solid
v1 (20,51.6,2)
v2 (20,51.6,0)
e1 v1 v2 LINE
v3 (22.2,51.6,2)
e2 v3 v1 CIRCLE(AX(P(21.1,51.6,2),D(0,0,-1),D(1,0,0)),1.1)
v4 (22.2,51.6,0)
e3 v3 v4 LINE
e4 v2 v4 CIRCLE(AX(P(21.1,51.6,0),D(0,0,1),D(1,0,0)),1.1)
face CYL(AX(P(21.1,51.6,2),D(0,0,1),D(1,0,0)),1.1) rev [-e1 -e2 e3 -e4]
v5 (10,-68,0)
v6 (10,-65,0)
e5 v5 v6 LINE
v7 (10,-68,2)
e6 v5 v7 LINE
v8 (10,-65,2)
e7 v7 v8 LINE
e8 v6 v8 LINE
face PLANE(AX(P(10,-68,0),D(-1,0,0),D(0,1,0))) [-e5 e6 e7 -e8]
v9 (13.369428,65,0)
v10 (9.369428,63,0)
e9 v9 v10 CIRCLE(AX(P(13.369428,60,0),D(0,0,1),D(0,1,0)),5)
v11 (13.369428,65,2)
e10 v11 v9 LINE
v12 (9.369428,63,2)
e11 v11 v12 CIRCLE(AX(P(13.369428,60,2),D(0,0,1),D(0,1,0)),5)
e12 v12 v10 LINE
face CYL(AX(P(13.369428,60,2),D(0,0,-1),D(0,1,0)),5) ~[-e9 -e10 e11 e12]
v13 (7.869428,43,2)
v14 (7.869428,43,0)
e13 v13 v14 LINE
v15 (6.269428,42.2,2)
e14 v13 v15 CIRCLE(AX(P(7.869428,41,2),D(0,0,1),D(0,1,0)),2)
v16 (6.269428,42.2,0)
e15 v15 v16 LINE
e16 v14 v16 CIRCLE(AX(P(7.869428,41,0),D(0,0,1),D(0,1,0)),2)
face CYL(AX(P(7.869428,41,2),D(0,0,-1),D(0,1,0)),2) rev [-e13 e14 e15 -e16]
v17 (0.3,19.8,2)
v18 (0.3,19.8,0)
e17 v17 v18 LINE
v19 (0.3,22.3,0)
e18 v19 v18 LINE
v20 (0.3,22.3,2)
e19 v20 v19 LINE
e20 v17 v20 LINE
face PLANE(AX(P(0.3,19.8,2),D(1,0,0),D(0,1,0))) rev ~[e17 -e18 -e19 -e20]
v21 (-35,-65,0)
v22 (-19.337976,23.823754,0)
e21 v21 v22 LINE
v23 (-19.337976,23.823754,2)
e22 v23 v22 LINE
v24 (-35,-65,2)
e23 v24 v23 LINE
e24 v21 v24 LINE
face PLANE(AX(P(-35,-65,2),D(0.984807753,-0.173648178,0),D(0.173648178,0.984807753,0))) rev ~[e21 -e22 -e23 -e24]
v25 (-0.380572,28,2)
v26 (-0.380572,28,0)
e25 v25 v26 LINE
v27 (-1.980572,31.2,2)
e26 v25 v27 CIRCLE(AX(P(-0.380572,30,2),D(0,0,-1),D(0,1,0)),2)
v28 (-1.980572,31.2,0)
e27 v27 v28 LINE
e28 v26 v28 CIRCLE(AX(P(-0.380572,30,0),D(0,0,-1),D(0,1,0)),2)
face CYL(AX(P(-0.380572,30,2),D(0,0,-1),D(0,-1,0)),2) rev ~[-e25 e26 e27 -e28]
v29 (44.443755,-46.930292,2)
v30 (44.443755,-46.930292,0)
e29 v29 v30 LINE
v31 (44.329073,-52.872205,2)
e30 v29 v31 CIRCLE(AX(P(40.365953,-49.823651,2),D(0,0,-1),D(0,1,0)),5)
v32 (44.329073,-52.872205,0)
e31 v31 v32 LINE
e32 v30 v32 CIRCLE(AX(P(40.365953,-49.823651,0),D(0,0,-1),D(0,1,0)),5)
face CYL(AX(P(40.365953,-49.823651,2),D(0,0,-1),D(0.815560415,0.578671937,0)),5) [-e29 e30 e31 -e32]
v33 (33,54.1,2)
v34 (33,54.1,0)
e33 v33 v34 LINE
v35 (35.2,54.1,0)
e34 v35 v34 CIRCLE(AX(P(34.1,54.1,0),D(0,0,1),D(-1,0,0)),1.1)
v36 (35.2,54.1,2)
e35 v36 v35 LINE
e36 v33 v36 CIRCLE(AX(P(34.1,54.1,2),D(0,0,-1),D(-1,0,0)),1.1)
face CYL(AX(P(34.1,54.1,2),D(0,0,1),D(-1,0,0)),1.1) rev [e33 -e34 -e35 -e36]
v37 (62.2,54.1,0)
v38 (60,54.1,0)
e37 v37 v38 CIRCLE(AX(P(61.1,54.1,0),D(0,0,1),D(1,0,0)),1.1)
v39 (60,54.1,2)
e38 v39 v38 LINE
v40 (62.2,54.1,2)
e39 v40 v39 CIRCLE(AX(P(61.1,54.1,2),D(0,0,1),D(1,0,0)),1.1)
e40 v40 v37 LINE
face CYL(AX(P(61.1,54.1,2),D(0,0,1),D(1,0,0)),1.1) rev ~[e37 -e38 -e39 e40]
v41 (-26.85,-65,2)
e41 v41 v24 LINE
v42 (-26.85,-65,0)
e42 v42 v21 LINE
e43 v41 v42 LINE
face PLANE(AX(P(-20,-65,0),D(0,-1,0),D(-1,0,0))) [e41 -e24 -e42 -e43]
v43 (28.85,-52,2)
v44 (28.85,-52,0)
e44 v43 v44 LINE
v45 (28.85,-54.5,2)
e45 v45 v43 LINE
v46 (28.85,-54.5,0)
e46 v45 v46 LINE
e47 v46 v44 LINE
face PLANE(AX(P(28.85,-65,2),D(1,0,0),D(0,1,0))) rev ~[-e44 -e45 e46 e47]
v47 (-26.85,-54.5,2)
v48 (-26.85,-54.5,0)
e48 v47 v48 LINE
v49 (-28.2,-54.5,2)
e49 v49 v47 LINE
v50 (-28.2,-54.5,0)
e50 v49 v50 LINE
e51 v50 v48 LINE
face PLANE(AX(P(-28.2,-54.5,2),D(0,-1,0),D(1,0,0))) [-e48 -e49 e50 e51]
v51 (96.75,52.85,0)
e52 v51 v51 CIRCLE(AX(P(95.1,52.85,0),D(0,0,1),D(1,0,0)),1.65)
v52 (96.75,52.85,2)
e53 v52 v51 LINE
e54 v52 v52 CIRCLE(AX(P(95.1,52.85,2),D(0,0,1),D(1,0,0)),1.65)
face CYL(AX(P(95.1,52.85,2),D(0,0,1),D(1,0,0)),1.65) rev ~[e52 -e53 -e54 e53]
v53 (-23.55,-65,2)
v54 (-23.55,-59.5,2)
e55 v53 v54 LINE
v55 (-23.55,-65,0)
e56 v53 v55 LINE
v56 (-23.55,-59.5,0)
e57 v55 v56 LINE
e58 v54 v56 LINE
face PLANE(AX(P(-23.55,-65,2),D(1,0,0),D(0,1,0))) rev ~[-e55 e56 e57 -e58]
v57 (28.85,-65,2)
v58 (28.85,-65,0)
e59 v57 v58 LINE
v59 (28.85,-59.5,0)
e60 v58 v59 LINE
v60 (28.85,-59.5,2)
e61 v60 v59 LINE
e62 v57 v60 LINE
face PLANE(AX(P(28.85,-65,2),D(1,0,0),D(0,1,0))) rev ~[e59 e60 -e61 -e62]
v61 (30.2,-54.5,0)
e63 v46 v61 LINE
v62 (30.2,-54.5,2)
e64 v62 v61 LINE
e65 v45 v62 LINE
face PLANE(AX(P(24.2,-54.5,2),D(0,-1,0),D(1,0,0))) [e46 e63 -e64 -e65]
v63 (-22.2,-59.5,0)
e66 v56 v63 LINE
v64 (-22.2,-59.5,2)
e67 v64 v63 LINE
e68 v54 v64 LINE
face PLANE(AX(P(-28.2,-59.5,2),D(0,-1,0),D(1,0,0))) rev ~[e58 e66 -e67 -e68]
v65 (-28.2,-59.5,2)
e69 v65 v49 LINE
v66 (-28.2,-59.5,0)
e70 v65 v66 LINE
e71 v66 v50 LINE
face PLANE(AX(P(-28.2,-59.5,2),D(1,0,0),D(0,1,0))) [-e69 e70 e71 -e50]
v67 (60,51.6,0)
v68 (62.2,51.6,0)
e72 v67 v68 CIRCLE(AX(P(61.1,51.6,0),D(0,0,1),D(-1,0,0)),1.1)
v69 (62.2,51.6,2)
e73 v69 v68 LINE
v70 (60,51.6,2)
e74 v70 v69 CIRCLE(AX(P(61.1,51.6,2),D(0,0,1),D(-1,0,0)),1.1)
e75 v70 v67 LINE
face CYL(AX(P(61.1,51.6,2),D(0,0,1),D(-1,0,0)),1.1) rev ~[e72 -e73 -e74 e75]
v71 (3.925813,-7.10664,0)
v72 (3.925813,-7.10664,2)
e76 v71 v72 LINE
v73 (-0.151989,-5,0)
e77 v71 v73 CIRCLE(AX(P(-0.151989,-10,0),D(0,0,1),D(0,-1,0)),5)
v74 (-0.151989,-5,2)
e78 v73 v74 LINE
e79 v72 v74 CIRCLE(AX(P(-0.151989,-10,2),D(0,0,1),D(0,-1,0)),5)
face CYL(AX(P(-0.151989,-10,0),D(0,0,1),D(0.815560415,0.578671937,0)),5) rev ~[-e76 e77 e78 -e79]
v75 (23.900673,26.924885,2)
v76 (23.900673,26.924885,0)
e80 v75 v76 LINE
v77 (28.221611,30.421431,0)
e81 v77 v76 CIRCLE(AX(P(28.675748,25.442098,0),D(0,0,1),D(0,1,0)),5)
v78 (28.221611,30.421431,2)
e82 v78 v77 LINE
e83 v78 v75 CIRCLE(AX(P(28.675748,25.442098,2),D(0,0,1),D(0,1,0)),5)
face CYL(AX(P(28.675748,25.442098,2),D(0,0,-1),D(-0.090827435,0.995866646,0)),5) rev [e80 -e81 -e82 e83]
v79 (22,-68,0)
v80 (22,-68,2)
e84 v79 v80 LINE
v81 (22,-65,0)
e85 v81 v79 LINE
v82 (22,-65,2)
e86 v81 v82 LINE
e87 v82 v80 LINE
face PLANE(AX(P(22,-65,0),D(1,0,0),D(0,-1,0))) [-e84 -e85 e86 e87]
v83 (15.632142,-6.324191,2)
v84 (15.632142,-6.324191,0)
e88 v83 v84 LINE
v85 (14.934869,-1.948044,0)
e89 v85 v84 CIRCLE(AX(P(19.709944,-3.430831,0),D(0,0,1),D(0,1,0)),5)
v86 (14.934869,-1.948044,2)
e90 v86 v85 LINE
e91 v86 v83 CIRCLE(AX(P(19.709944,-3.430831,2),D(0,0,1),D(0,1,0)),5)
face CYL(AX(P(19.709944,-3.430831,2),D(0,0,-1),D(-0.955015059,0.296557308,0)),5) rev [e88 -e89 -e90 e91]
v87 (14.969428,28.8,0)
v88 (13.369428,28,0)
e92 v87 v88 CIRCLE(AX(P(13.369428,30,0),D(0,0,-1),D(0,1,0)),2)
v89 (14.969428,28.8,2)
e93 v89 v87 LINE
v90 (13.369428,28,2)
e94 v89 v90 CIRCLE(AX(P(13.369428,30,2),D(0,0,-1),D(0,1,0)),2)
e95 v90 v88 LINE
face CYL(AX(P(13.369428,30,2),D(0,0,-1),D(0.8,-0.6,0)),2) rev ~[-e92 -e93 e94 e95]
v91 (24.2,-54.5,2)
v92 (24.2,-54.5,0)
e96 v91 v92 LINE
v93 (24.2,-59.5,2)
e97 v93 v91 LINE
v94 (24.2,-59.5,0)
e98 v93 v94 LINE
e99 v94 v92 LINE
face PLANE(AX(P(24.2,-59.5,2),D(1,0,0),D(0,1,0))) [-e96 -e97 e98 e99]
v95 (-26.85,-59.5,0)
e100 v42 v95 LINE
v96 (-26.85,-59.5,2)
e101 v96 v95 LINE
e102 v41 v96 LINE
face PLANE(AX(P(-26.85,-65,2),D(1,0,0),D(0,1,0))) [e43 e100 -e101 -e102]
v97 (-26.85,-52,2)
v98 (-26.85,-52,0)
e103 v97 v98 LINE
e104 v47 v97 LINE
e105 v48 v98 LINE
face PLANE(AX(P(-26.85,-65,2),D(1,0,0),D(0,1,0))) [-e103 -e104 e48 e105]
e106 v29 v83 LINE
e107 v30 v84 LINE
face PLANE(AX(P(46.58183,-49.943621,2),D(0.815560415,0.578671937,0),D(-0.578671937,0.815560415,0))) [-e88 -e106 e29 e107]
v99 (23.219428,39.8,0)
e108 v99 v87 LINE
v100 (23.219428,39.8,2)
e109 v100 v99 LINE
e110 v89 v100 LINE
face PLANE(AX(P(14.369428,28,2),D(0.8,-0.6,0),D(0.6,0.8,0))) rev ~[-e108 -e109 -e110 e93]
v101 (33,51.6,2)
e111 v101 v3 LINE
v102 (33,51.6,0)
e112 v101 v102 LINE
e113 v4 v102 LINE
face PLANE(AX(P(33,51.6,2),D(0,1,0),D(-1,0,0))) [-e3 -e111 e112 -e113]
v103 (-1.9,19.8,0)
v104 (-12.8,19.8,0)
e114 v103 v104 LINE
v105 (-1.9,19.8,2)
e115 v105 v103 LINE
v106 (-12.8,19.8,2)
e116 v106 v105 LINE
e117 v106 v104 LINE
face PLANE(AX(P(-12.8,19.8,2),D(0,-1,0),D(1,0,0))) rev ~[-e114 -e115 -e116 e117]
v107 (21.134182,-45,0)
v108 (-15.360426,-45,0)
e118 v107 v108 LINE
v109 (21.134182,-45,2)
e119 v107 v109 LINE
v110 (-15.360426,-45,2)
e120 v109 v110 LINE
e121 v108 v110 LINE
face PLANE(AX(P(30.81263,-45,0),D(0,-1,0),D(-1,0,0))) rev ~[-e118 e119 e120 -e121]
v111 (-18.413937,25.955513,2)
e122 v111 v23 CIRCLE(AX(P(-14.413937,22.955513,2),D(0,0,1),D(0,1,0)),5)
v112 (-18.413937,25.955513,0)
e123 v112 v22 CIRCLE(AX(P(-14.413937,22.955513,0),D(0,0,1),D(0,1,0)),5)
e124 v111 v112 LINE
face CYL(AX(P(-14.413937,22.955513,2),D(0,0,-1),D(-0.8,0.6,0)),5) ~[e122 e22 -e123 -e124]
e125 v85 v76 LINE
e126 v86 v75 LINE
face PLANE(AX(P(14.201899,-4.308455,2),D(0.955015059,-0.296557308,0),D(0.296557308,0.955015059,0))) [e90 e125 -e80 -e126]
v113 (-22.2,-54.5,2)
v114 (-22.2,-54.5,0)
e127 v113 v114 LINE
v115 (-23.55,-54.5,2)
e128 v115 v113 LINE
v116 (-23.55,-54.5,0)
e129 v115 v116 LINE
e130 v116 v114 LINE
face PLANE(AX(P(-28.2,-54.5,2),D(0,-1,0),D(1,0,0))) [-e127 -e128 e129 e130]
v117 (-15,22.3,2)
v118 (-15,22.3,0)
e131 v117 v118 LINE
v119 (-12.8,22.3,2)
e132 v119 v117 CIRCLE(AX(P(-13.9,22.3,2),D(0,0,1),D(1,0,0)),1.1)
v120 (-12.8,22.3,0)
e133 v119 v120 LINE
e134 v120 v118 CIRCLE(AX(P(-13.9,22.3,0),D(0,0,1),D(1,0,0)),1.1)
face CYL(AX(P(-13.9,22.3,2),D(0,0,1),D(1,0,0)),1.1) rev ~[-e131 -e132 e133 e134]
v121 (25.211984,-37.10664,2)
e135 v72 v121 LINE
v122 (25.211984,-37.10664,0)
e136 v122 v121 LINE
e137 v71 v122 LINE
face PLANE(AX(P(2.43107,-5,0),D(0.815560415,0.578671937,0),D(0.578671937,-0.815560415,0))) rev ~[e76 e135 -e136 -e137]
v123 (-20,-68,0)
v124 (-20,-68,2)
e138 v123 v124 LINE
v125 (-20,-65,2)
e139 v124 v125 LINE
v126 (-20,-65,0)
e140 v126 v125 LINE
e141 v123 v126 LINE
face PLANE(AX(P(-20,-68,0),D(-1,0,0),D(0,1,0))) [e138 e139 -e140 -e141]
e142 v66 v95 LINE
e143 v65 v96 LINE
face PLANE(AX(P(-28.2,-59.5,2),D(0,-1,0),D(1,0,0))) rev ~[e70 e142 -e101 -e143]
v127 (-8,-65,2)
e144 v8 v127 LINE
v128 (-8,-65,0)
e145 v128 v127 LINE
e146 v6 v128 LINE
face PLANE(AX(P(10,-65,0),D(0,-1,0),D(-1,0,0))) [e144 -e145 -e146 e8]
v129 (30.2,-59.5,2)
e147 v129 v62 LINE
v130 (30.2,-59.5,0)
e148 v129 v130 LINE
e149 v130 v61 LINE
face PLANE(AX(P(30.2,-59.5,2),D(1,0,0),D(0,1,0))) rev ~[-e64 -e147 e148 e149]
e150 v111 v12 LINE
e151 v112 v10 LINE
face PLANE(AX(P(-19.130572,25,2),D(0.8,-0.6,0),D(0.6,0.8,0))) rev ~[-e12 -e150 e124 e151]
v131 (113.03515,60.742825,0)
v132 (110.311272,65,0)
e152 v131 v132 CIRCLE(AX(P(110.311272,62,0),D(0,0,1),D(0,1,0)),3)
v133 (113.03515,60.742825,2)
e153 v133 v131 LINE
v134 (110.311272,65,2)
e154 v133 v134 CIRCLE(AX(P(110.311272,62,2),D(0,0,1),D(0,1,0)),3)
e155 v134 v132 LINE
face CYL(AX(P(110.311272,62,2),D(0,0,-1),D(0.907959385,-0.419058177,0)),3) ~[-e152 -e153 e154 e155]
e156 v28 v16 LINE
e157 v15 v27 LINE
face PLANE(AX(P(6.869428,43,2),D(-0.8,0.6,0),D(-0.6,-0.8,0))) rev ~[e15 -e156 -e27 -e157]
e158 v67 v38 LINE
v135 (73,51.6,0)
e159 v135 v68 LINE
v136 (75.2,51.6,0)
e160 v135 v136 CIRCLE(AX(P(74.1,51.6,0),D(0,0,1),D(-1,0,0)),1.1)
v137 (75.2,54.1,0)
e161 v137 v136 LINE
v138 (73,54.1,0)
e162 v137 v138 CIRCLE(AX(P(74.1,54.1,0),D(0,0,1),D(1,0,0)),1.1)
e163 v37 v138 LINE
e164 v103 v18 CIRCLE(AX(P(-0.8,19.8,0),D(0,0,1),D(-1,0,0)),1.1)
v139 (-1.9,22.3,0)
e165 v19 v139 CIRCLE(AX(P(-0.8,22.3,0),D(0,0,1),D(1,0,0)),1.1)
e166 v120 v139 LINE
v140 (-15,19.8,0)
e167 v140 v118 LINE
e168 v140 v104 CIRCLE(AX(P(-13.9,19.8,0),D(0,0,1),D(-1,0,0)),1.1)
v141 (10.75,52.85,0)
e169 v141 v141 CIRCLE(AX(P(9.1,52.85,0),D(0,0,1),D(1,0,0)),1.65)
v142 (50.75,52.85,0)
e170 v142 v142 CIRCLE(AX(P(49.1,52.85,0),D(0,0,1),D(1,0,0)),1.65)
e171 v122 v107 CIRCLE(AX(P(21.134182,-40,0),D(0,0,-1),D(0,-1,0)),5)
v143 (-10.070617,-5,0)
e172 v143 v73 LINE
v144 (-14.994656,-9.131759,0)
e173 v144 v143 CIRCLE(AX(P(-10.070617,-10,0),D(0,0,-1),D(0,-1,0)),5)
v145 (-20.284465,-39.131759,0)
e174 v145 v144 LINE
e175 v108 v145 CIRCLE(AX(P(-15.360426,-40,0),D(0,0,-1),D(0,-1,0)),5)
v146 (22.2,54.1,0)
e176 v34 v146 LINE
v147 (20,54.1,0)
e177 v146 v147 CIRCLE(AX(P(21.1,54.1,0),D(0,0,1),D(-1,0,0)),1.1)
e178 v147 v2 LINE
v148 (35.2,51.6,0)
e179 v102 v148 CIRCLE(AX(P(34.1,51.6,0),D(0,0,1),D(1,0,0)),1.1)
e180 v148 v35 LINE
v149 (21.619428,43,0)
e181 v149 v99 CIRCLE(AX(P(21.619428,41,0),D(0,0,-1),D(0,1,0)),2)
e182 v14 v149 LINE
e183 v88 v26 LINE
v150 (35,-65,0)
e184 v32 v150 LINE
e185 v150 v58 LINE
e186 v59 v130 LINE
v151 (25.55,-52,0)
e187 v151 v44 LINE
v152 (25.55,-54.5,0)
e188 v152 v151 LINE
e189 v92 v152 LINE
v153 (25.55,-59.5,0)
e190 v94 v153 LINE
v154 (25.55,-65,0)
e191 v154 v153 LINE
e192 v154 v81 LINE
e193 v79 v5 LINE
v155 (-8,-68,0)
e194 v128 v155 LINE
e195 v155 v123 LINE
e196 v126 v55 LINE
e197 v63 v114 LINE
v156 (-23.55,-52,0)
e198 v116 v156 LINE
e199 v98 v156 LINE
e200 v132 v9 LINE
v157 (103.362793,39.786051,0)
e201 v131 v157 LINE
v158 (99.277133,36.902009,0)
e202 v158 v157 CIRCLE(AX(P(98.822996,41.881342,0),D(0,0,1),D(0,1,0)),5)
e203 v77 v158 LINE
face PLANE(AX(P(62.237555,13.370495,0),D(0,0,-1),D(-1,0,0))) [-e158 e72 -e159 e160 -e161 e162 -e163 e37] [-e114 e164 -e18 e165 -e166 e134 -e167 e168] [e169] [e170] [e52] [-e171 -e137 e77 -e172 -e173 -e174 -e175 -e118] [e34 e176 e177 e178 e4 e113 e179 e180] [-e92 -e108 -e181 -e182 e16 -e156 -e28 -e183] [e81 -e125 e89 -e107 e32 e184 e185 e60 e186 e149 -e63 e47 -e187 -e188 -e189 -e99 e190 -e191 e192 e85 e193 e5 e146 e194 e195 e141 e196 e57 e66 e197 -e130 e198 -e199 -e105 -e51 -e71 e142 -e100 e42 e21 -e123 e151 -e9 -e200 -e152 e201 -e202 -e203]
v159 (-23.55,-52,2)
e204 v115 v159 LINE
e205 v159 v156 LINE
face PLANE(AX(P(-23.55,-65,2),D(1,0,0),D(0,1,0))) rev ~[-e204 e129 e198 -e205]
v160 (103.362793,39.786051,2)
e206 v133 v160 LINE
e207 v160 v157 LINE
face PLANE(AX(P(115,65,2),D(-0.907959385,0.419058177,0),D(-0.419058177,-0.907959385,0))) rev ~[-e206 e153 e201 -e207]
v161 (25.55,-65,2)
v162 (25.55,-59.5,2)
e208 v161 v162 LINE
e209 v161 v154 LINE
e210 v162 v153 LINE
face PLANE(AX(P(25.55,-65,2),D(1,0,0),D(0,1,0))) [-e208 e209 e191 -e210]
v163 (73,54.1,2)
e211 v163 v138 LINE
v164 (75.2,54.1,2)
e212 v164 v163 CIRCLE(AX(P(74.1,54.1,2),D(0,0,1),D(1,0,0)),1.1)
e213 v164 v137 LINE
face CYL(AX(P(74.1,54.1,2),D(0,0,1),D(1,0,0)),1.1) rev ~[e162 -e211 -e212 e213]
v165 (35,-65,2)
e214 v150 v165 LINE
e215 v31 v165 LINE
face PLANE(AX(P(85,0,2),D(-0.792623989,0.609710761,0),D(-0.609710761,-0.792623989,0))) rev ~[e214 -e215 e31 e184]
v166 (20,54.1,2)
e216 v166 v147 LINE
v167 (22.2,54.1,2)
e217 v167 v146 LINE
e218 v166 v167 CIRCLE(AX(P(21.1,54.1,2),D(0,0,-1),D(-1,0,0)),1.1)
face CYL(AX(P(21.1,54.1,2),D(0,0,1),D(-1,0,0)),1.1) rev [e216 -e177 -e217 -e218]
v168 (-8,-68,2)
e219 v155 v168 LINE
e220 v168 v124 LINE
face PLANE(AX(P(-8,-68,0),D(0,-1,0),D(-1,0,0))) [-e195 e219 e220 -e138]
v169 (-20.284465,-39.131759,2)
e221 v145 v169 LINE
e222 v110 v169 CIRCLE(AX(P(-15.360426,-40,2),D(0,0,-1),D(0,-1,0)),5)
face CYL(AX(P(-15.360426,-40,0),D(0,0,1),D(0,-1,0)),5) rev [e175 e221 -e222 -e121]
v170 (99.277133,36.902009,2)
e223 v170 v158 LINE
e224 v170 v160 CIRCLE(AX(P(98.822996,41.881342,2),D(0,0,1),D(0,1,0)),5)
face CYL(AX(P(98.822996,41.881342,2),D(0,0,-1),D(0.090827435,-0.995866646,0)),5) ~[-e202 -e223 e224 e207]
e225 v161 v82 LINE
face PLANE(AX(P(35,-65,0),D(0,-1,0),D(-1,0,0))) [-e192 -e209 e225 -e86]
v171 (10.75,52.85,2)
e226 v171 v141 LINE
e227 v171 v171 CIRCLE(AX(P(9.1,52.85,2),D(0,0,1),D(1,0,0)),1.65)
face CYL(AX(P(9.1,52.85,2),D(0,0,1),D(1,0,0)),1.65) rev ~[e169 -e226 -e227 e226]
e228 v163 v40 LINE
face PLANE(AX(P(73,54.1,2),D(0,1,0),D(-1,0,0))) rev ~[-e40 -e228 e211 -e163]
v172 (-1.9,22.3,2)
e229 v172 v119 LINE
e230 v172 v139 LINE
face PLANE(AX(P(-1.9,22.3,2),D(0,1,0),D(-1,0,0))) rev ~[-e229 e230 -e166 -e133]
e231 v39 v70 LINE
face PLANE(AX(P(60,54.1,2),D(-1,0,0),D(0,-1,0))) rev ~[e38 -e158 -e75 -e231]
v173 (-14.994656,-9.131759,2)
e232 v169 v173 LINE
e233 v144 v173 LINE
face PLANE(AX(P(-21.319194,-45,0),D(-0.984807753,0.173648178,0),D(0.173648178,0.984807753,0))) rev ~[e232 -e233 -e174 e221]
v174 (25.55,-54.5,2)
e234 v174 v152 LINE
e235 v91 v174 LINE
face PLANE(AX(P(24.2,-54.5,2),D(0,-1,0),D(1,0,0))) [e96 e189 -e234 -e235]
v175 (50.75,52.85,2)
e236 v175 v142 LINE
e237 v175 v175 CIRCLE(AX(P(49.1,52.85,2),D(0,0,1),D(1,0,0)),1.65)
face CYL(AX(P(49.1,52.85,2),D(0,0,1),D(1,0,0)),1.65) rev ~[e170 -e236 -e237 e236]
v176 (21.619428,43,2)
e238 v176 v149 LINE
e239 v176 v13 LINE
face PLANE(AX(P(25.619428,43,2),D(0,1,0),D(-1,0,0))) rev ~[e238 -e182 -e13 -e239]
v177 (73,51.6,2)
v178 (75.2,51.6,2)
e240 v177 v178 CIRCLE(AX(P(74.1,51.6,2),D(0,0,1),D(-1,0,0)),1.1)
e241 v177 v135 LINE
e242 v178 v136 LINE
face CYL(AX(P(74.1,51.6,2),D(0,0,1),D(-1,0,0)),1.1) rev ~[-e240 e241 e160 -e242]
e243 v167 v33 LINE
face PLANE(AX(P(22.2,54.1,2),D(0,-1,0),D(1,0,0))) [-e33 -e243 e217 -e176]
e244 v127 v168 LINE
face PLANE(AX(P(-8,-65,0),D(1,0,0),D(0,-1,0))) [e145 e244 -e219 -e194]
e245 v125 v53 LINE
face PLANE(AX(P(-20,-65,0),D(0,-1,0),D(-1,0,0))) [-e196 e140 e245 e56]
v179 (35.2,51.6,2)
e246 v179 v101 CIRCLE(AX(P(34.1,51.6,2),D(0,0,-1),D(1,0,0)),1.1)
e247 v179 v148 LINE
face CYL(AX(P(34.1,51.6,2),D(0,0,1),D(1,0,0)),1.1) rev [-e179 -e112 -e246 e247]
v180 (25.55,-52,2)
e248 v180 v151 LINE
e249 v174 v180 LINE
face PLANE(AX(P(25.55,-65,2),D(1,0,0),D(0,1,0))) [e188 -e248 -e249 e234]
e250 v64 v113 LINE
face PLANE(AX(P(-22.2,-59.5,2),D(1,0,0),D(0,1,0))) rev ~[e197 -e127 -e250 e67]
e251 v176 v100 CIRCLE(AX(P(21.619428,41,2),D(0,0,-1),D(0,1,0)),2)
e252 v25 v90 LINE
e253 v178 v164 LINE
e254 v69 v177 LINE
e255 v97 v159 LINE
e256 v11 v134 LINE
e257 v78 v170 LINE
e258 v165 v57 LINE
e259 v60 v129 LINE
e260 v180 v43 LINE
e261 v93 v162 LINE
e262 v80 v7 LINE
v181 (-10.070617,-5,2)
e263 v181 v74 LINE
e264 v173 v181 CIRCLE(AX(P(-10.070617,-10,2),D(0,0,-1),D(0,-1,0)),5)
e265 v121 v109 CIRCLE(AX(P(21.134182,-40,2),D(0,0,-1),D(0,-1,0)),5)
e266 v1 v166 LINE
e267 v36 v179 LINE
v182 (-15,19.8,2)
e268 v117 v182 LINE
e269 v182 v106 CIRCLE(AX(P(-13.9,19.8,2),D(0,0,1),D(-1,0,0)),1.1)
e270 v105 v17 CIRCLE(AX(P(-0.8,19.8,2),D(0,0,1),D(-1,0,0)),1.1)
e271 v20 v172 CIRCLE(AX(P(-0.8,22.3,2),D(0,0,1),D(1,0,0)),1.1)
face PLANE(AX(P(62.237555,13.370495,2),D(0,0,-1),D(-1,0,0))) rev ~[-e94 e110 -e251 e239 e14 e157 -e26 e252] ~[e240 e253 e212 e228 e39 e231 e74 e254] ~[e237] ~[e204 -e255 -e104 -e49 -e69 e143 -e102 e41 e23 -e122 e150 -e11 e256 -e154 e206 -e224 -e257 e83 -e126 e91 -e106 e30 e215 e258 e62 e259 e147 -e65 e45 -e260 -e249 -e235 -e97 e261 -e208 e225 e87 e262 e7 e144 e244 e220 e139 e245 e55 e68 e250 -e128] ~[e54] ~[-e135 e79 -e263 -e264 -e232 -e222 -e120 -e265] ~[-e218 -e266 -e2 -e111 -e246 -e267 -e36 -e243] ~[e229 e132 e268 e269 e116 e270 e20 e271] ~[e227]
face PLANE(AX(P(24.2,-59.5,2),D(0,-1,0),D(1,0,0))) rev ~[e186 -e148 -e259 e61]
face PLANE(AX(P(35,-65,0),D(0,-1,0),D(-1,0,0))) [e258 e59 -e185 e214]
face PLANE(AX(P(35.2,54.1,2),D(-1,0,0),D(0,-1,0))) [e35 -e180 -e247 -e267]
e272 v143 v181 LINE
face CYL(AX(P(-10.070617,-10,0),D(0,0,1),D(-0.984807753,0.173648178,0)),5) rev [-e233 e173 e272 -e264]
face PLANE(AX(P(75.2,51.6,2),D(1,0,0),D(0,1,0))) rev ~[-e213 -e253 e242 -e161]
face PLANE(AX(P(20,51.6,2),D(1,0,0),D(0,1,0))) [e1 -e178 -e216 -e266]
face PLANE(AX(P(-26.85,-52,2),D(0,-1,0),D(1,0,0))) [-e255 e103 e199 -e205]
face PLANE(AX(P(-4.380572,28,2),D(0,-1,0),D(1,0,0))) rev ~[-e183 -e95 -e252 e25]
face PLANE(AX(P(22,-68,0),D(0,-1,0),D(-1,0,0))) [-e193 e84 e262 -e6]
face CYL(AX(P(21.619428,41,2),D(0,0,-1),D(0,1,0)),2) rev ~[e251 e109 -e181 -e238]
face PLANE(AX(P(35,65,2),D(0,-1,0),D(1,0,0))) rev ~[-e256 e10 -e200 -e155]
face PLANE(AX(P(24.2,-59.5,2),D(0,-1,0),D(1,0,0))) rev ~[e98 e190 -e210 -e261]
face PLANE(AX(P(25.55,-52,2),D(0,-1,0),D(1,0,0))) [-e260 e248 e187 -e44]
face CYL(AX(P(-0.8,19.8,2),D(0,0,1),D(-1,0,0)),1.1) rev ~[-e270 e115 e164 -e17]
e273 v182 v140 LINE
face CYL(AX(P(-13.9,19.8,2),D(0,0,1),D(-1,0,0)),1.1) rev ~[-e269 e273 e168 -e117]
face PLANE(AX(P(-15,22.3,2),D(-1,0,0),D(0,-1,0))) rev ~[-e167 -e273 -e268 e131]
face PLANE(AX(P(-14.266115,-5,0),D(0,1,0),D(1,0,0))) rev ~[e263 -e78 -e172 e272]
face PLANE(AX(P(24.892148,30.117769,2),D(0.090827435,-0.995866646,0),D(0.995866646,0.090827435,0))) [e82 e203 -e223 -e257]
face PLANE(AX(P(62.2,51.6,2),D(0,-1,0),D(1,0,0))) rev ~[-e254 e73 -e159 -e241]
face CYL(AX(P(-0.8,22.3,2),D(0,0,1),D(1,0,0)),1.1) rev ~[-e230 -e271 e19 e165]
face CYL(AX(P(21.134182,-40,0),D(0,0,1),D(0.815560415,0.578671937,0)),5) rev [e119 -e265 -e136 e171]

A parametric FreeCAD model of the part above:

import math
import FreeCAD as App
import Part
import Sketcher
Q = App.Units.Quantity


def edges_at(feature, points):
    """Names of the edges that pass closest to the given points."""
    edges = feature.Shape.Edges
    near = lambda p: min(range(len(edges)), key=lambda i: edges[i].distToShape(Part.Vertex(*p))[0])
    return sorted({f"Edge{near(p) + 1}" for p in points})

doc = App.newDocument("Part")
body = doc.addObject("PartDesign::Body", "Body")

# Sketch on XY plane
sketch1 = body.newObject("Sketcher::SketchObject", "Sketch")
sketch1.AttachmentSupport = (doc.getObject("XY_Plane"), [""])
sketch1.MapMode = "FlatFace"
sketch1.addGeometry([
    Part.LineSegment(App.Vector(-35, -65, 0), App.Vector(-20, -65, 0)),  # 0
    Part.LineSegment(App.Vector(-20, -65, 0), App.Vector(-20, -68, 0)),  # 1
    Part.LineSegment(App.Vector(-20, -68, 0), App.Vector(-8, -68, 0)),  # 2
    Part.LineSegment(App.Vector(-8, -68, 0), App.Vector(-8, -65, 0)),  # 3
    Part.LineSegment(App.Vector(-8, -65, 0), App.Vector(10, -65, 0)),  # 4
    Part.LineSegment(App.Vector(10, -65, 0), App.Vector(10, -68, 0)),  # 5
    Part.LineSegment(App.Vector(10, -68, 0), App.Vector(22, -68, 0)),  # 6
    Part.LineSegment(App.Vector(22, -68, 0), App.Vector(22, -65, 0)),  # 7
    Part.LineSegment(App.Vector(22, -65, 0), App.Vector(35, -65, 0)),  # 8
    Part.LineSegment(App.Vector(35, -65, 0), App.Vector(35, 65, 0)),  # 9
    Part.LineSegment(App.Vector(35, 65, 0), App.Vector(-35, 65, 0)),  # 10
    Part.LineSegment(App.Vector(-35, 65, 0), App.Vector(-35, -65, 0)),  # 11
], False)
sketch1.addConstraint([
    Sketcher.Constraint("Coincident", 0, 2, 1, 1),
    Sketcher.Constraint("Coincident", 1, 2, 2, 1),
    Sketcher.Constraint("Coincident", 2, 2, 3, 1),
    Sketcher.Constraint("Coincident", 3, 2, 4, 1),
    Sketcher.Constraint("Coincident", 4, 2, 5, 1),
    Sketcher.Constraint("Coincident", 5, 2, 6, 1),
    Sketcher.Constraint("Coincident", 6, 2, 7, 1),
    Sketcher.Constraint("Coincident", 7, 2, 8, 1),
    Sketcher.Constraint("Coincident", 8, 2, 9, 1),
    Sketcher.Constraint("Coincident", 9, 2, 10, 1),
    Sketcher.Constraint("Coincident", 10, 2, 11, 1),
    Sketcher.Constraint("Coincident", 11, 2, 0, 1),
    Sketcher.Constraint("Horizontal", 0),
    Sketcher.Constraint("Vertical", 1),
    Sketcher.Constraint("Horizontal", 2),
    Sketcher.Constraint("Vertical", 3),
    Sketcher.Constraint("Horizontal", 4),
    Sketcher.Constraint("Vertical", 5),
    Sketcher.Constraint("Horizontal", 6),
    Sketcher.Constraint("Vertical", 7),
    Sketcher.Constraint("Horizontal", 8),
    Sketcher.Constraint("Vertical", 9),
    Sketcher.Constraint("Horizontal", 10),
    Sketcher.Constraint("Vertical", 11),
    Sketcher.Constraint("Symmetric", 8, 2, 10, 2, -1, 1),
    Sketcher.Constraint("Horizontal", 0, 2, 3, 2),
    Sketcher.Constraint("Horizontal", 2, 2, 5, 2),
    Sketcher.Constraint("Horizontal", 4, 2, 7, 2),
    Sketcher.Constraint("Equal", 2, 6),
    Sketcher.Constraint("DistanceX", 0, 1, 0, 2, Q("15 mm")),
    Sketcher.Constraint("DistanceX", 2, 1, 2, 2, Q("12 mm")),
    Sketcher.Constraint("DistanceX", 4, 1, 4, 2, Q("18 mm")),
    Sketcher.Constraint("DistanceX", 8, 1, 8, 2, Q("13 mm")),
    Sketcher.Constraint("DistanceY", 1, 2, 1, 1, Q("3 mm")),
    Sketcher.Constraint("DistanceY", 9, 1, 9, 2, Q("130 mm")),
])
pad1 = body.newObject("PartDesign::Pad", "Pad")
pad1.Profile = sketch1
pad1.Length = 2

# Sketch on XY plane
sketch2 = body.newObject("Sketcher::SketchObject", "Sketch001")
sketch2.AttachmentSupport = (doc.getObject("XY_Plane"), [""])
sketch2.MapMode = "FlatFace"
sketch2.AttachmentOffset = App.Placement(App.Vector(0, 0, 2), App.Rotation())
sketch2.addGeometry([
    Part.LineSegment(App.Vector(-35, -65, 0), App.Vector(-19, 25, 0)),
    Part.LineSegment(App.Vector(-19, 25, 0), App.Vector(11, 65, 0)),
    Part.LineSegment(App.Vector(11, 65, 0), App.Vector(-35, 65, 0)),
    Part.LineSegment(App.Vector(-35, 65, 0), App.Vector(-35, -65, 0)),
], False)
sketch2.addConstraint([
    Sketcher.Constraint("Coincident", 0, 2, 1, 1),
    Sketcher.Constraint("Coincident", 1, 2, 2, 1),
    Sketcher.Constraint("Coincident", 2, 2, 3, 1),
    Sketcher.Constraint("Coincident", 3, 2, 0, 1),
    Sketcher.Constraint("Horizontal", 2),
    Sketcher.Constraint("Vertical", 3),
    Sketcher.Constraint("DistanceY", 3, 2, 3, 1, Q("130 mm")),
    Sketcher.Constraint("Angle", 0, Q("80 deg")),
    Sketcher.Constraint("Distance", 1, Q("50 mm")),
    Sketcher.Constraint("DistanceY", -1, 1, 0, 2, Q("25 mm")),
    Sketcher.Constraint("DistanceY", -1, 1, 1, 2, Q("65 mm")),
    Sketcher.Constraint("DistanceX", 2, 2, -1, 1, Q("35 mm")),
])
pocket1 = body.newObject("PartDesign::Pocket", "Pocket")
pocket1.Profile = sketch2
pocket1.Length = 2

# Sketch on XY plane
sketch3 = body.newObject("Sketcher::SketchObject", "Sketch002")
sketch3.AttachmentSupport = (doc.getObject("XY_Plane"), [""])
sketch3.MapMode = "FlatFace"
sketch3.AttachmentOffset = App.Placement(App.Vector(0, 0, 2), App.Rotation())
sketch3.addGeometry([
    Part.LineSegment(App.Vector(115, 65, 0), App.Vector(35, 65, 0)),
    Part.LineSegment(App.Vector(35, 65, 0), App.Vector(35, -65, 0)),
    Part.LineSegment(App.Vector(35, -65, 0), App.Vector(85, 0, 0)),
    Part.LineSegment(App.Vector(85, 0, 0), App.Vector(115, 65, 0)),
], False)
sketch3.addConstraint([
    Sketcher.Constraint("Coincident", 0, 2, 1, 1),
    Sketcher.Constraint("Coincident", 1, 2, 2, 1),
    Sketcher.Constraint("Coincident", 2, 2, 3, 1),
    Sketcher.Constraint("Coincident", 3, 2, 0, 1),
    Sketcher.Constraint("Horizontal", 0),
    Sketcher.Constraint("Vertical", 1),
    Sketcher.Constraint("PointOnObject", 2, 2, -1),
    Sketcher.Constraint("DistanceX", 0, 2, 0, 1, Q("80 mm")),
    Sketcher.Constraint("DistanceY", 1, 2, 1, 1, Q("130 mm")),
    Sketcher.Constraint("DistanceX", -1, 1, 0, 2, Q("35 mm")),
    Sketcher.Constraint("DistanceY", -1, 1, 0, 2, Q("65 mm")),
    Sketcher.Constraint("DistanceX", -1, 1, 2, 2, Q("85 mm")),
])
pad2 = body.newObject("PartDesign::Pad", "Pad001")
pad2.Profile = sketch3
pad2.Length = 2
pad2.Reversed = True

# Sketch on XY plane
sketch4 = body.newObject("Sketcher::SketchObject", "Sketch003")
sketch4.AttachmentSupport = (doc.getObject("XY_Plane"), [""])
sketch4.MapMode = "FlatFace"
sketch4.AttachmentOffset = App.Placement(App.Vector(0, 0, 2), App.Rotation())
sketch4.addGeometry([
    Part.LineSegment(App.Vector(-26.9, -52, 0), App.Vector(-26.9, -65, 0)),  # 0
    Part.LineSegment(App.Vector(-26.9, -65, 0), App.Vector(-23.6, -65, 0)),  # 1
    Part.LineSegment(App.Vector(-23.6, -65, 0), App.Vector(-23.6, -52, 0)),  # 2
    Part.LineSegment(App.Vector(-23.6, -52, 0), App.Vector(-26.9, -52, 0)),  # 3
    Part.LineSegment(App.Vector(25.6, -52, 0), App.Vector(25.6, -65, 0)),  # 4
    Part.LineSegment(App.Vector(25.6, -65, 0), App.Vector(28.9, -65, 0)),  # 5
    Part.LineSegment(App.Vector(28.9, -65, 0), App.Vector(28.9, -52, 0)),  # 6
    Part.LineSegment(App.Vector(28.9, -52, 0), App.Vector(25.6, -52, 0)),  # 7
], False)
sketch4.addConstraint([
    Sketcher.Constraint("Coincident", 0, 2, 1, 1),
    Sketcher.Constraint("Coincident", 1, 2, 2, 1),
    Sketcher.Constraint("Coincident", 2, 2, 3, 1),
    Sketcher.Constraint("Coincident", 3, 2, 0, 1),
    Sketcher.Constraint("Coincident", 4, 2, 5, 1),
    Sketcher.Constraint("Coincident", 5, 2, 6, 1),
    Sketcher.Constraint("Coincident", 6, 2, 7, 1),
    Sketcher.Constraint("Coincident", 7, 2, 4, 1),
    Sketcher.Constraint("Vertical", 0),
    Sketcher.Constraint("Horizontal", 1),
    Sketcher.Constraint("Vertical", 2),
    Sketcher.Constraint("Horizontal", 3),
    Sketcher.Constraint("Vertical", 4),
    Sketcher.Constraint("Horizontal", 5),
    Sketcher.Constraint("Vertical", 6),
    Sketcher.Constraint("Horizontal", 7),
    Sketcher.Constraint("Horizontal", 1, 2, 4, 2),
    Sketcher.Constraint("Horizontal", 3, 2, 6, 2),
    Sketcher.Constraint("Equal", 3, 5),
    Sketcher.Constraint("DistanceY", 0, 2, 0, 1, Q("13 mm")),
    Sketcher.Constraint("DistanceX", 1, 1, 1, 2, Q("3.3 mm")),
    Sketcher.Constraint("DistanceY", 0, 2, -1, 1, Q("65 mm")),
    Sketcher.Constraint("DistanceX", 1, 2, 4, 2, Q("49.1 mm")),
    Sketcher.Constraint("DistanceX", 0, 2, -1, 1, Q("26.85 mm")),
])
pocket2 = body.newObject("PartDesign::Pocket", "Pocket001")
pocket2.Profile = sketch4
pocket2.Length = 2

# Sketch on XY plane
sketch5 = body.newObject("Sketcher::SketchObject", "Sketch004")
sketch5.AttachmentSupport = (doc.getObject("XY_Plane"), [""])
sketch5.MapMode = "FlatFace"
sketch5.AttachmentOffset = App.Placement(App.Vector(0, 0, 2), App.Rotation())
sketch5.addGeometry([
    Part.LineSegment(App.Vector(-28, -54, 0), App.Vector(-28, -60, 0)),  # 0
    Part.LineSegment(App.Vector(-28, -60, 0), App.Vector(-22, -60, 0)),  # 1
    Part.LineSegment(App.Vector(-22, -60, 0), App.Vector(-22, -54, 0)),  # 2
    Part.LineSegment(App.Vector(-22, -54, 0), App.Vector(-28, -54, 0)),  # 3
    Part.LineSegment(App.Vector(24, -54, 0), App.Vector(24, -60, 0)),  # 4
    Part.LineSegment(App.Vector(24, -60, 0), App.Vector(30, -60, 0)),  # 5
    Part.LineSegment(App.Vector(30, -60, 0), App.Vector(30, -54, 0)),  # 6
    Part.LineSegment(App.Vector(30, -54, 0), App.Vector(24, -54, 0)),  # 7
], False)
sketch5.addConstraint([
    Sketcher.Constraint("Coincident", 0, 2, 1, 1),
    Sketcher.Constraint("Coincident", 1, 2, 2, 1),
    Sketcher.Constraint("Coincident", 2, 2, 3, 1),
    Sketcher.Constraint("Coincident", 3, 2, 0, 1),
    Sketcher.Constraint("Coincident", 4, 2, 5, 1),
    Sketcher.Constraint("Coincident", 5, 2, 6, 1),
    Sketcher.Constraint("Coincident", 6, 2, 7, 1),
    Sketcher.Constraint("Coincident", 7, 2, 4, 1),
    Sketcher.Constraint("Vertical", 0),
    Sketcher.Constraint("Horizontal", 1),
    Sketcher.Constraint("Vertical", 2),
    Sketcher.Constraint("Horizontal", 3),
    Sketcher.Constraint("Vertical", 4),
    Sketcher.Constraint("Horizontal", 5),
    Sketcher.Constraint("Vertical", 6),
    Sketcher.Constraint("Horizontal", 7),
    Sketcher.Constraint("Horizontal", 1, 2, 4, 2),
    Sketcher.Constraint("Horizontal", 3, 2, 6, 2),
    Sketcher.Constraint("Equal", 3, 5),
    Sketcher.Constraint("DistanceX", 1, 1, 1, 2, Q("6 mm")),
    Sketcher.Constraint("DistanceY", 0, 2, 0, 1, Q("5 mm")),
    Sketcher.Constraint("DistanceX", 0, 2, -1, 1, Q("28.2 mm")),
    Sketcher.Constraint("DistanceY", 0, 2, -1, 1, Q("59.5 mm")),
    Sketcher.Constraint("DistanceX", -1, 1, 4, 2, Q("24.2 mm")),
])
pocket3 = body.newObject("PartDesign::Pocket", "Pocket002")
pocket3.Profile = sketch5
pocket3.Length = 2

# Sketch on XY plane
sketch6 = body.newObject("Sketcher::SketchObject", "Sketch005")
sketch6.AttachmentSupport = (doc.getObject("XY_Plane"), [""])
sketch6.MapMode = "FlatFace"
sketch6.AttachmentOffset = App.Placement(App.Vector(0, 0, 2), App.Rotation())
sketch6.addGeometry([
    Part.LineSegment(App.Vector(14, -4, 0), App.Vector(47, -50, 0)),  # 0
    Part.LineSegment(App.Vector(47, -50, 0), App.Vector(85, 0, 0)),  # 1
    Part.LineSegment(App.Vector(85, 0, 0), App.Vector(102, 37, 0)),  # 2
    Part.LineSegment(App.Vector(102, 37, 0), App.Vector(25, 30, 0)),  # 3
    Part.LineSegment(App.Vector(25, 30, 0), App.Vector(14, -4, 0)),  # 4
], False)
sketch6.addConstraint([
    Sketcher.Constraint("Coincident", 0, 2, 1, 1),
    Sketcher.Constraint("Coincident", 1, 2, 2, 1),
    Sketcher.Constraint("Coincident", 2, 2, 3, 1),
    Sketcher.Constraint("Coincident", 3, 2, 4, 1),
    Sketcher.Constraint("Coincident", 4, 2, 0, 1),
    Sketcher.Constraint("PointOnObject", 1, 2, -1),
    Sketcher.Constraint("DistanceX", -1, 1, 1, 2, Q("85 mm")),
    Sketcher.Constraint("DistanceX", -1, 1, 4, 2, Q("14.201899 mm")),
    Sketcher.Constraint("DistanceY", 0, 2, 2, 2, Q("87.107898 mm")),
    Sketcher.Constraint("Distance", 2, Q("40.931651 mm")),
    Sketcher.Constraint("DistanceX", -1, 1, 0, 2, Q("46.58183 mm")),
    Sketcher.Constraint("DistanceY", 0, 2, -1, 1, Q("49.943621 mm")),
    Sketcher.Constraint("DistanceY", -1, 1, 3, 2, Q("30.117769 mm")),
    Sketcher.Constraint("DistanceX", 4, 2, 3, 2, Q("10.690249 mm")),
    Sketcher.Constraint("Distance", 0, Q("55.955592 mm")),
])
pocket4 = body.newObject("PartDesign::Pocket", "Pocket003")
pocket4.Profile = sketch6
pocket4.Length = 2

# Sketch on XY plane
sketch7 = body.newObject("Sketcher::SketchObject", "Sketch006")
sketch7.AttachmentSupport = (doc.getObject("XY_Plane"), [""])
sketch7.MapMode = "FlatFace"
sketch7.AttachmentOffset = App.Placement(App.Vector(0, 0, 2), App.Rotation())
sketch7.addGeometry([
    Part.LineSegment(App.Vector(-12.8, 19.8, 0), App.Vector(-1.9, 19.8, 0)),  # 0
    Part.ArcOfCircle(Part.Circle(App.Vector(-0.8, 19.8, 0), App.Vector(0, 0, 1), 1.1), math.radians(180), math.radians(360)),  # 1
    Part.LineSegment(App.Vector(0.3, 19.8, 0), App.Vector(0.3, 22.3, 0)),  # 2
    Part.ArcOfCircle(Part.Circle(App.Vector(-0.8, 22.3, 0), App.Vector(0, 0, 1), 1.1), math.radians(0), math.radians(180)),  # 3
    Part.LineSegment(App.Vector(-1.9, 22.3, 0), App.Vector(-12.8, 22.3, 0)),  # 4
    Part.ArcOfCircle(Part.Circle(App.Vector(-13.9, 22.3, 0), App.Vector(0, 0, 1), 1.1), math.radians(0), math.radians(180)),  # 5
    Part.LineSegment(App.Vector(-15, 22.3, 0), App.Vector(-15, 19.8, 0)),  # 6
    Part.ArcOfCircle(Part.Circle(App.Vector(-13.9, 19.8, 0), App.Vector(0, 0, 1), 1.1), math.radians(180), math.radians(360)),  # 7
], False)
sketch7.addConstraint([
    Sketcher.Constraint("Coincident", 0, 2, 1, 1),
    Sketcher.Constraint("Tangent", 1, 2, 2, 1),
    Sketcher.Constraint("Tangent", 2, 2, 3, 1),
    Sketcher.Constraint("Coincident", 3, 2, 4, 1),
    Sketcher.Constraint("Coincident", 4, 2, 5, 1),
    Sketcher.Constraint("Tangent", 5, 2, 6, 1),
    Sketcher.Constraint("Tangent", 6, 2, 7, 1),
    Sketcher.Constraint("Coincident", 7, 2, 0, 1),
    Sketcher.Constraint("Horizontal", 0),
    Sketcher.Constraint("Vertical", 2),
    Sketcher.Constraint("Horizontal", 4),
    Sketcher.Constraint("Vertical", 6),
    Sketcher.Constraint("Equal", 1, 3),
    Sketcher.Constraint("Equal", 3, 5),
    Sketcher.Constraint("Equal", 5, 7),
    Sketcher.Constraint("Horizontal", 3, 3, 5, 3),
    Sketcher.Constraint("Horizontal", 1, 3, 7, 3),
    Sketcher.Constraint("Horizontal", 7, 3, 0, 2),
    Sketcher.Constraint("Horizontal", 2, 2, 3, 2),
    Sketcher.Constraint("Radius", 1, Q("1.1 mm")),
    Sketcher.Constraint("DistanceX", 0, 1, 0, 2, Q("10.9 mm")),
    Sketcher.Constraint("DistanceY", 2, 1, 2, 2, Q("2.5 mm")),
    Sketcher.Constraint("DistanceX", 5, 2, -1, 1, Q("15 mm")),
    Sketcher.Constraint("DistanceY", -1, 1, 1, 3, Q("19.8 mm")),
])
pocket5 = body.newObject("PartDesign::Pocket", "Pocket004")
pocket5.Profile = sketch7
pocket5.Length = 10

# Sketch on XY plane
sketch8 = body.newObject("Sketcher::SketchObject", "Sketch007")
sketch8.AttachmentSupport = (doc.getObject("XY_Plane"), [""])
sketch8.MapMode = "FlatFace"
sketch8.addGeometry([
    Part.LineSegment(App.Vector(2, -5, 0), App.Vector(31, -45, 0)),
    Part.LineSegment(App.Vector(31, -45, 0), App.Vector(-21, -45, 0)),
    Part.LineSegment(App.Vector(-21, -45, 0), App.Vector(-14, -5, 0)),
    Part.LineSegment(App.Vector(-14, -5, 0), App.Vector(2, -5, 0)),
], False)
sketch8.addConstraint([
    Sketcher.Constraint("Coincident", 0, 2, 1, 1),
    Sketcher.Constraint("Coincident", 1, 2, 2, 1),
    Sketcher.Constraint("Coincident", 2, 2, 3, 1),
    Sketcher.Constraint("Coincident", 3, 2, 0, 1),
    Sketcher.Constraint("Horizontal", 1),
    Sketcher.Constraint("Horizontal", 3),
    Sketcher.Constraint("Angle", 2, Q("80 deg")),
    Sketcher.Constraint("DistanceY", 0, 2, -1, 1, Q("45 mm")),
    Sketcher.Constraint("DistanceY", 2, 2, -1, 1, Q("5 mm")),
    Sketcher.Constraint("Distance", 0, Q("49.046029 mm")),
    Sketcher.Constraint("DistanceX", 1, 2, 1, 1, Q("52.131825 mm")),
    Sketcher.Constraint("DistanceX", -1, 1, 0, 2, Q("30.81263 mm")),
])
pocket6 = body.newObject("PartDesign::Pocket", "Pocket005")
pocket6.Profile = sketch8
pocket6.Length = 10
pocket6.Reversed = True
doc.recompute()

fillet = body.newObject("PartDesign::Fillet", "Fillet")
fillet.Base = (pocket6, edges_at(pocket6, [
    (46.582, -49.944, 1),
    (14.202, -4.308, 1),
    (24.892, 30.118, 1),
    (2.431, -5, 1),
    (-14.266, -5, 1),
    (-21.319, -45, 1),
    (30.813, -45, 1),
]))
fillet.Radius = 5

# Sketch on XY plane
sketch9 = body.newObject("Sketcher::SketchObject", "Sketch008")
sketch9.AttachmentSupport = (doc.getObject("XY_Plane"), [""])
sketch9.MapMode = "FlatFace"
sketch9.AttachmentOffset = App.Placement(App.Vector(0, 0, 2), App.Rotation())
sketch9.addGeometry([
    Part.LineSegment(App.Vector(33, 54.1, 0), App.Vector(22.2, 54.1, 0)),  # 0
    Part.ArcOfCircle(Part.Circle(App.Vector(21.1, 54.1, 0), App.Vector(0, 0, 1), 1.1), math.radians(0), math.radians(180)),  # 1
    Part.LineSegment(App.Vector(20, 54.1, 0), App.Vector(20, 51.6, 0)),  # 2
    Part.ArcOfCircle(Part.Circle(App.Vector(21.1, 51.6, 0), App.Vector(0, 0, 1), 1.1), math.radians(180), math.radians(360)),  # 3
    Part.LineSegment(App.Vector(22.2, 51.6, 0), App.Vector(33, 51.6, 0)),  # 4
    Part.ArcOfCircle(Part.Circle(App.Vector(34.1, 51.6, 0), App.Vector(0, 0, 1), 1.1), math.radians(180), math.radians(360)),  # 5
    Part.LineSegment(App.Vector(35.2, 51.6, 0), App.Vector(35.2, 54.1, 0)),  # 6
    Part.ArcOfCircle(Part.Circle(App.Vector(34.1, 54.1, 0), App.Vector(0, 0, 1), 1.1), math.radians(0), math.radians(180)),  # 7
    Part.LineSegment(App.Vector(62.2, 51.6, 0), App.Vector(73, 51.6, 0)),  # 8
    Part.ArcOfCircle(Part.Circle(App.Vector(74.1, 51.6, 0), App.Vector(0, 0, 1), 1.1), math.radians(180), math.radians(360)),  # 9
    Part.LineSegment(App.Vector(75.2, 51.6, 0), App.Vector(75.2, 54.1, 0)),  # 10
    Part.ArcOfCircle(Part.Circle(App.Vector(74.1, 54.1, 0), App.Vector(0, 0, 1), 1.1), math.radians(0), math.radians(180)),  # 11
    Part.LineSegment(App.Vector(73, 54.1, 0), App.Vector(62.2, 54.1, 0)),  # 12
    Part.ArcOfCircle(Part.Circle(App.Vector(61.1, 54.1, 0), App.Vector(0, 0, 1), 1.1), math.radians(0), math.radians(180)),  # 13
    Part.LineSegment(App.Vector(60, 54.1, 0), App.Vector(60, 51.6, 0)),  # 14
    Part.ArcOfCircle(Part.Circle(App.Vector(61.1, 51.6, 0), App.Vector(0, 0, 1), 1.1), math.radians(180), math.radians(360)),  # 15
], False)
sketch9.addConstraint([
    Sketcher.Constraint("Coincident", 0, 2, 1, 1),
    Sketcher.Constraint("Tangent", 1, 2, 2, 1),
    Sketcher.Constraint("Tangent", 2, 2, 3, 1),
    Sketcher.Constraint("Coincident", 3, 2, 4, 1),
    Sketcher.Constraint("Coincident", 4, 2, 5, 1),
    Sketcher.Constraint("Tangent", 5, 2, 6, 1),
    Sketcher.Constraint("Tangent", 6, 2, 7, 1),
    Sketcher.Constraint("Coincident", 7, 2, 0, 1),
    Sketcher.Constraint("Coincident", 8, 2, 9, 1),
    Sketcher.Constraint("Tangent", 9, 2, 10, 1),
    Sketcher.Constraint("Tangent", 10, 2, 11, 1),
    Sketcher.Constraint("Coincident", 11, 2, 12, 1),
    Sketcher.Constraint("Coincident", 12, 2, 13, 1),
    Sketcher.Constraint("Tangent", 13, 2, 14, 1),
    Sketcher.Constraint("Tangent", 14, 2, 15, 1),
    Sketcher.Constraint("Coincident", 15, 2, 8, 1),
    Sketcher.Constraint("Horizontal", 0),
    Sketcher.Constraint("Vertical", 2),
    Sketcher.Constraint("Horizontal", 4),
    Sketcher.Constraint("Vertical", 6),
    Sketcher.Constraint("Horizontal", 8),
    Sketcher.Constraint("Vertical", 10),
    Sketcher.Constraint("Horizontal", 12),
    Sketcher.Constraint("Vertical", 14),
    Sketcher.Constraint("Equal", 1, 3),
    Sketcher.Constraint("Equal", 3, 5),
    Sketcher.Constraint("Equal", 5, 7),
    Sketcher.Constraint("Equal", 7, 9),
    Sketcher.Constraint("Equal", 9, 11),
    Sketcher.Constraint("Equal", 11, 13),
    Sketcher.Constraint("Equal", 13, 15),
    Sketcher.Constraint("Horizontal", 3, 3, 5, 3),
    Sketcher.Constraint("Horizontal", 1, 3, 7, 3),
    Sketcher.Constraint("Horizontal", 5, 3, 9, 3),
    Sketcher.Constraint("Horizontal", 7, 3, 11, 3),
    Sketcher.Constraint("Horizontal", 11, 3, 13, 3),
    Sketcher.Constraint("Horizontal", 9, 3, 15, 3),
    Sketcher.Constraint("Horizontal", 13, 3, 0, 2),
    Sketcher.Constraint("Horizontal", 2, 2, 3, 2),
    Sketcher.Constraint("Horizontal", 5, 2, 8, 2),
    Sketcher.Constraint("Horizontal", 10, 2, 11, 2),
    Sketcher.Constraint("Equal", 4, 8),
    Sketcher.Constraint("Radius", 1, Q("1.1 mm")),
    Sketcher.Constraint("DistanceX", 0, 2, 0, 1, Q("10.8 mm")),
    Sketcher.Constraint("DistanceY", 2, 2, 2, 1, Q("2.5 mm")),
    Sketcher.Constraint("DistanceX", -1, 1, 1, 2, Q("20 mm")),
    Sketcher.Constraint("DistanceX", -1, 1, 8, 2, Q("73 mm")),
    Sketcher.Constraint("DistanceY", -1, 1, 1, 3, Q("54.1 mm")),
])
pocket7 = body.newObject("PartDesign::Pocket", "Pocket006")
pocket7.Profile = sketch9
pocket7.Length = 50

# Sketch on XY plane
sketch10 = body.newObject("Sketcher::SketchObject", "Sketch009")
sketch10.AttachmentSupport = (doc.getObject("XY_Plane"), [""])
sketch10.MapMode = "FlatFace"
sketch10.AttachmentOffset = App.Placement(App.Vector(0, 0, 2), App.Rotation())
sketch10.addGeometry([
    Part.Circle(App.Vector(9.1, 52.9, 0), App.Vector(0, 0, 1), 1.6),
    Part.Circle(App.Vector(49.1, 52.9, 0), App.Vector(0, 0, 1), 1.6),
    Part.Circle(App.Vector(95.1, 52.9, 0), App.Vector(0, 0, 1), 1.6),
], False)
sketch10.addConstraint([
    Sketcher.Constraint("Equal", 0, 1),
    Sketcher.Constraint("Equal", 1, 2),
    Sketcher.Constraint("Horizontal", 0, 3, 1, 3),
    Sketcher.Constraint("Horizontal", 1, 3, 2, 3),
    Sketcher.Constraint("Diameter", 0, Q("3.3 mm")),
    Sketcher.Constraint("DistanceX", 0, 3, 1, 3, Q("40 mm")),
    Sketcher.Constraint("DistanceX", 1, 3, 2, 3, Q("46 mm")),
    Sketcher.Constraint("DistanceX", -1, 1, 0, 3, Q("9.1 mm")),
    Sketcher.Constraint("DistanceY", -1, 1, 0, 3, Q("52.85 mm")),
])
pocket8 = body.newObject("PartDesign::Pocket", "Pocket007")
pocket8.Profile = sketch10
pocket8.Length = 50
doc.recompute()

fillet2 = body.newObject("PartDesign::Fillet", "Fillet001")
fillet2.Base = (pocket8, edges_at(pocket8, [(102.153, 37.164, 1), (10.869, 65, 1), (-19.131, 25, 1)]))
fillet2.Radius = 5

# Sketch on XY plane
sketch11 = body.newObject("Sketcher::SketchObject", "Sketch010")
sketch11.AttachmentSupport = (doc.getObject("XY_Plane"), [""])
sketch11.MapMode = "FlatFace"
sketch11.AttachmentOffset = App.Placement(App.Vector(0, 0, 2), App.Rotation())
sketch11.addGeometry([
    Part.LineSegment(App.Vector(7, 43, 0), App.Vector(-4, 28, 0)),
    Part.LineSegment(App.Vector(-4, 28, 0), App.Vector(14, 28, 0)),
    Part.LineSegment(App.Vector(14, 28, 0), App.Vector(26, 43, 0)),
    Part.LineSegment(App.Vector(26, 43, 0), App.Vector(7, 43, 0)),
], False)
sketch11.addConstraint([
    Sketcher.Constraint("Coincident", 0, 2, 1, 1),
    Sketcher.Constraint("Coincident", 1, 2, 2, 1),
    Sketcher.Constraint("Coincident", 2, 2, 3, 1),
    Sketcher.Constraint("Coincident", 3, 2, 0, 1),
    Sketcher.Constraint("Horizontal", 1),
    Sketcher.Constraint("Horizontal", 3),
    Sketcher.Constraint("Parallel", 0, 2),
    Sketcher.Constraint("DistanceY", -1, 1, 0, 2, Q("28 mm")),
    Sketcher.Constraint("DistanceY", -1, 1, 2, 2, Q("43 mm")),
    Sketcher.Constraint("DistanceX", 0, 2, 2, 2, Q("30 mm")),
    Sketcher.Constraint("DistanceX", 1, 1, 1, 2, Q("18.75 mm")),
    Sketcher.Constraint("DistanceX", 0, 2, -1, 1, Q("4.380572 mm")),
])
pocket9 = body.newObject("PartDesign::Pocket", "Pocket008")
pocket9.Profile = sketch11
pocket9.Length = 50
doc.recompute()

fillet3 = body.newObject("PartDesign::Fillet", "Fillet002")
fillet3.Base = (pocket9, edges_at(pocket9, [
    (6.869, 43, 1),
    (25.619, 43, 1),
    (14.369, 28, 1),
    (-4.381, 28, 1),
]))
fillet3.Radius = 2
doc.recompute()

fillet4 = body.newObject("PartDesign::Fillet", "Fillet003")
fillet4.Base = (fillet3, edges_at(fillet3, [(115, 65, 1)]))
fillet4.Radius = 3

doc.recompute()
